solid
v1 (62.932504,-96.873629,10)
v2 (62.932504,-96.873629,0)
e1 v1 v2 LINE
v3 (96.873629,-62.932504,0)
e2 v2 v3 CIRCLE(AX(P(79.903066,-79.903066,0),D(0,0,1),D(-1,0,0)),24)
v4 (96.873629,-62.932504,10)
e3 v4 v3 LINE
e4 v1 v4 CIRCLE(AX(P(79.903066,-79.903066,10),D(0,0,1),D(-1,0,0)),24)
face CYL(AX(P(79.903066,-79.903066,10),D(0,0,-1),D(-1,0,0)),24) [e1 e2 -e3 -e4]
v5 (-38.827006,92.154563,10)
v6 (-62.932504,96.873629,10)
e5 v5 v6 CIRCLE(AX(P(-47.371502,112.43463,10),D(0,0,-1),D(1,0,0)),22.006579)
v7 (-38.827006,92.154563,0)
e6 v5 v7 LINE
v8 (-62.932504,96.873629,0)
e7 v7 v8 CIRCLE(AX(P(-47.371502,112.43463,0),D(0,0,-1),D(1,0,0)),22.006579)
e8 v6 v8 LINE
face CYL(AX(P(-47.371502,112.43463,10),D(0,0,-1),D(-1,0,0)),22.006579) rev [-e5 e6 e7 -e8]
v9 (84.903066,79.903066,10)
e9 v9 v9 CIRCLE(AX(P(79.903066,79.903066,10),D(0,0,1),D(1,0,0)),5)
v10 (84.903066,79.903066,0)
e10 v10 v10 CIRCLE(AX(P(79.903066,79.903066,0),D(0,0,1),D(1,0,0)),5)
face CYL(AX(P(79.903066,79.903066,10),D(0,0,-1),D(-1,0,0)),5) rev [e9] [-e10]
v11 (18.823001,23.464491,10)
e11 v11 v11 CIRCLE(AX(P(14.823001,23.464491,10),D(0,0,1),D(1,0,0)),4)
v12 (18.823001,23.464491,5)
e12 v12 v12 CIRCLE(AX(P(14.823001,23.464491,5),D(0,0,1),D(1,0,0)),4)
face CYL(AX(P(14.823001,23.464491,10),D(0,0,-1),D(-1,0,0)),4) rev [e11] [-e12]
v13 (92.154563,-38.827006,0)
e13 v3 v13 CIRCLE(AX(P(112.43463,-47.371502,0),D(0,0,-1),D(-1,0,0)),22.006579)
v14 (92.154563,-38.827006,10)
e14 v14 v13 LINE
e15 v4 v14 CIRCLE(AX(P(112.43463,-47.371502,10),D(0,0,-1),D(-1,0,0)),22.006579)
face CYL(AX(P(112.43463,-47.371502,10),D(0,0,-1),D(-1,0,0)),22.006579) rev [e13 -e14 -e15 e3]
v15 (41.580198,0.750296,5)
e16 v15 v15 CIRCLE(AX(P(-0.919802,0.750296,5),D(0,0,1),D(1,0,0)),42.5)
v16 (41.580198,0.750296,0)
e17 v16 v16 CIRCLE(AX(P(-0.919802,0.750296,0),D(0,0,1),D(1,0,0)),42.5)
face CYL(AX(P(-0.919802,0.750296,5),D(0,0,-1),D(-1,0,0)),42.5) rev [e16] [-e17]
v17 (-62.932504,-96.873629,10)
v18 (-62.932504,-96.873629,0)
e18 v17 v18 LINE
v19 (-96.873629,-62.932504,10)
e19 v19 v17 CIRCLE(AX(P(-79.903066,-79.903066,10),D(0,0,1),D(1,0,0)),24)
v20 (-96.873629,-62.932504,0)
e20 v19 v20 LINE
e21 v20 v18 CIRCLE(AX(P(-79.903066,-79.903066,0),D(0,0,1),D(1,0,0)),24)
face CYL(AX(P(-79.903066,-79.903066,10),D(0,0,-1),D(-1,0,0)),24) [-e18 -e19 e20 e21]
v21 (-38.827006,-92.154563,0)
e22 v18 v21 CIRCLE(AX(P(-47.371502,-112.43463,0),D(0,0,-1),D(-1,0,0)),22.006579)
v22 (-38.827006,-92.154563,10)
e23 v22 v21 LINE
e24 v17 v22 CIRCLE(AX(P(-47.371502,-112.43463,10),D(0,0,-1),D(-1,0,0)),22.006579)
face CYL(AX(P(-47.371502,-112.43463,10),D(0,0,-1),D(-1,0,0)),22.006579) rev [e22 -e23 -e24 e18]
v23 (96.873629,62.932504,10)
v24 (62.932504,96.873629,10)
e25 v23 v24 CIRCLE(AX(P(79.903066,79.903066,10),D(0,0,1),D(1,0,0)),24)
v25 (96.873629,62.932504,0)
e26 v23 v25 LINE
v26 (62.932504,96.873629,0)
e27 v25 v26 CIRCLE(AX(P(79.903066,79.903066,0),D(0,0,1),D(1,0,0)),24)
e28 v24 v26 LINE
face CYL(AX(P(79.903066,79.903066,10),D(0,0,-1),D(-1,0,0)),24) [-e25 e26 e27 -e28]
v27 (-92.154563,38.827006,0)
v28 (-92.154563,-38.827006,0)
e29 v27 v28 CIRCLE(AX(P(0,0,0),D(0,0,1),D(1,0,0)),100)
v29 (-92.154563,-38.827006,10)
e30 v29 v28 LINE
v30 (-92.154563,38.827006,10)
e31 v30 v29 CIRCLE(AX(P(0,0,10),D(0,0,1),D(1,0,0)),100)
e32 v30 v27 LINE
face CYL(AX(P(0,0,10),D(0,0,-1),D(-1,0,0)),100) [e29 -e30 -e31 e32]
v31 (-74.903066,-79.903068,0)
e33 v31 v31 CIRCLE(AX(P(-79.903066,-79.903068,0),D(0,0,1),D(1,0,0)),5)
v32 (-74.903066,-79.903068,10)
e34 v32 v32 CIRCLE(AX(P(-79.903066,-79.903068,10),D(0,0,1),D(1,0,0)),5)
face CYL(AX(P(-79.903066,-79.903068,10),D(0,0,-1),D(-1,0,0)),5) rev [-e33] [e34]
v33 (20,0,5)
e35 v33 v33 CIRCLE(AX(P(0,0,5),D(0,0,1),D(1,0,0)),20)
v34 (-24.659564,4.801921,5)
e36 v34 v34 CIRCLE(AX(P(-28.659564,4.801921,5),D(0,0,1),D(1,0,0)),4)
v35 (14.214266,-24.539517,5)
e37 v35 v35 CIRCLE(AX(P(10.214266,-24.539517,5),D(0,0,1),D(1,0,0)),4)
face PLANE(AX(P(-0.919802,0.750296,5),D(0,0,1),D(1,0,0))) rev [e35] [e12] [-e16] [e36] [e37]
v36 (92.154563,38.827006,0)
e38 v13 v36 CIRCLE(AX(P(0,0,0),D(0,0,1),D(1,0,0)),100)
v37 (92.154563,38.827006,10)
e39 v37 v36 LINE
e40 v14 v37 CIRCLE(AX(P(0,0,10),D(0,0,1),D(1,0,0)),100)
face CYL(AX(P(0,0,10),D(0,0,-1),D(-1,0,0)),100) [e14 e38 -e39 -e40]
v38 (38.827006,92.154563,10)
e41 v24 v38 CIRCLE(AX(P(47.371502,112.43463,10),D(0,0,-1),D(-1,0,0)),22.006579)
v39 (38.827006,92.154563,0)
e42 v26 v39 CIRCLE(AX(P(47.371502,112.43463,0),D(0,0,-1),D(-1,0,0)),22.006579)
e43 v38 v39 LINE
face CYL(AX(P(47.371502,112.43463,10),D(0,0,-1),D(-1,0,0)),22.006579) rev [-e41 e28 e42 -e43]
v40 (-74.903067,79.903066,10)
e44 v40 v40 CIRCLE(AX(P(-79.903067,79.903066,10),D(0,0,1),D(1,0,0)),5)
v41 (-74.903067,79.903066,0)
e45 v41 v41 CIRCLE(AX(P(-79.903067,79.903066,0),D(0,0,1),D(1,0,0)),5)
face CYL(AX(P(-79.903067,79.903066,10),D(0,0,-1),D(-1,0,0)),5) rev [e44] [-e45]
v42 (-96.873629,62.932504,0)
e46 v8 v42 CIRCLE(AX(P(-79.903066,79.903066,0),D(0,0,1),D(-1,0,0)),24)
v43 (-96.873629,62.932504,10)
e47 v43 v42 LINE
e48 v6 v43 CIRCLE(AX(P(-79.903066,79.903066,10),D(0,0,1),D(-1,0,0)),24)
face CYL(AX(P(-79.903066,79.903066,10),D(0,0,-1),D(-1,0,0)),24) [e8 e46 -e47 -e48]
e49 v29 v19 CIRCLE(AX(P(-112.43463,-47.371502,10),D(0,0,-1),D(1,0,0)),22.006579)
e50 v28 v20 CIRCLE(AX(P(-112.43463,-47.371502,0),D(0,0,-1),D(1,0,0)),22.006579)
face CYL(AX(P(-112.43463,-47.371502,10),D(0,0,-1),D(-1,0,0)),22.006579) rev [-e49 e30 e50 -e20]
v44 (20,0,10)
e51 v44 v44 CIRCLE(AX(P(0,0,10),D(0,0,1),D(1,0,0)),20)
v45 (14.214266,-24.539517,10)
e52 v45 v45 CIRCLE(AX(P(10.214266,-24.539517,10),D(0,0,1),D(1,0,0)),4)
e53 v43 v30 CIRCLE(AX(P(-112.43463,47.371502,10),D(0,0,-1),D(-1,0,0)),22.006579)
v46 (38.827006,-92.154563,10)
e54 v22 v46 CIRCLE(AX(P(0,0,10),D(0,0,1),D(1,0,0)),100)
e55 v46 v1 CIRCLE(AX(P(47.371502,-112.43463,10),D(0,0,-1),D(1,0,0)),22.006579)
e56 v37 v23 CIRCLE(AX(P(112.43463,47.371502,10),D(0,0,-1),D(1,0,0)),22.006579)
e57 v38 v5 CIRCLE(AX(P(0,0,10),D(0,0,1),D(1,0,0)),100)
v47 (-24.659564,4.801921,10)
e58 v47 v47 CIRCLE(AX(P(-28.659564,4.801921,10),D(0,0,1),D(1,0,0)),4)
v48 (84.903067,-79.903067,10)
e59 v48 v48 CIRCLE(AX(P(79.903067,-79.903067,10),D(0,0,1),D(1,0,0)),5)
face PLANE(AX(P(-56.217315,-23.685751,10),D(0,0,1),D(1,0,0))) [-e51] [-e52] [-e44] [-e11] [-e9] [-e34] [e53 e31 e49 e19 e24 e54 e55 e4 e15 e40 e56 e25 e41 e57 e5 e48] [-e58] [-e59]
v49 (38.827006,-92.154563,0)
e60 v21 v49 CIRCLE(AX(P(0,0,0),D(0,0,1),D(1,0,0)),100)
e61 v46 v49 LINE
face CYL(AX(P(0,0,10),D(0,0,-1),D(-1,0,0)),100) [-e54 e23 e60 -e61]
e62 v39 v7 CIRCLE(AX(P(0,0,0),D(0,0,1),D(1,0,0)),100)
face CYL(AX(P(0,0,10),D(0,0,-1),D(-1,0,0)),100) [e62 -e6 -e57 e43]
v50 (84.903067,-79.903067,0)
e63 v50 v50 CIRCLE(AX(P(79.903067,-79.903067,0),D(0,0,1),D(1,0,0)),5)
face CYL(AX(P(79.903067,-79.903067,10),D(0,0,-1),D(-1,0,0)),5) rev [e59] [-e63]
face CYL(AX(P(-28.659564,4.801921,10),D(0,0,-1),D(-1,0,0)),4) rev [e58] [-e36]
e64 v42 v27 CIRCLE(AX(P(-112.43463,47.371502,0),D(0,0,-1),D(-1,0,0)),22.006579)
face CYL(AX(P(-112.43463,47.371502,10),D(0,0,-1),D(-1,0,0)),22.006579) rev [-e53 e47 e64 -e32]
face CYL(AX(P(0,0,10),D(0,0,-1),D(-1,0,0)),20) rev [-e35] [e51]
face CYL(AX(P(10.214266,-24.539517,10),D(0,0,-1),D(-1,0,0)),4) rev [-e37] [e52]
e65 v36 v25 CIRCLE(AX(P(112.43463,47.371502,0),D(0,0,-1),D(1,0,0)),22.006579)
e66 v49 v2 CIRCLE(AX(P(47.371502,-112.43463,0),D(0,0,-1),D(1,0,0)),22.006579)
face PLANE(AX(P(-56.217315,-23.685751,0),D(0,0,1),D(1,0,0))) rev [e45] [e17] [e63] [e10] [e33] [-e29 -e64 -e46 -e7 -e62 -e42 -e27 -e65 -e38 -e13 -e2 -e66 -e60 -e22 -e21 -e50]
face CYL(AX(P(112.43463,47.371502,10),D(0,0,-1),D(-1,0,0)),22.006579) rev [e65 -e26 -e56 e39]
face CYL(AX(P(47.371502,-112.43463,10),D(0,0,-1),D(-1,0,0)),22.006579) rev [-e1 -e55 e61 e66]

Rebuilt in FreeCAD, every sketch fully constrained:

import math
import FreeCAD as App
import Part
import Sketcher
from FreeCAD import Vector
Q = App.Units.Quantity

doc = App.newDocument("Part")
body = doc.addObject("PartDesign::Body", "Body")

# Sketch on XY plane
sketch1 = doc.addObject("Sketcher::SketchObject", "Sketch")
body.addObject(sketch1)
sketch1.AttachmentSupport = (doc.XY_Plane, [""])
sketch1.MapMode = "FlatFace"
sketch1.addGeometry([
    Part.ArcOfCircle(Part.Circle(Vector(47.371502, 112.43463, 0), Vector(0, 0, 1), 22.006579), math.radians(-112.846901), math.radians(-45)),  # 0
    Part.ArcOfCircle(Part.Circle(Vector(0, 0, 0), Vector(0, 0, 1), 100), math.radians(67.153099), math.radians(112.846901)),  # 1
    Part.ArcOfCircle(Part.Circle(Vector(-47.371502, 112.43463, 0), Vector(0, 0, 1), 22.006579), math.radians(-135), math.radians(-67.153099)),  # 2
    Part.ArcOfCircle(Part.Circle(Vector(-79.903066, 79.903066, 0), Vector(0, 0, 1), 24), math.radians(45), math.radians(225)),  # 3
    Part.ArcOfCircle(Part.Circle(Vector(-112.43463, 47.371502, 0), Vector(0, 0, 1), 22.006579), math.radians(-22.846901), math.radians(45)),  # 4
    Part.ArcOfCircle(Part.Circle(Vector(0, 0, 0), Vector(0, 0, 1), 100), math.radians(157.153099), math.radians(202.846901)),  # 5
    Part.ArcOfCircle(Part.Circle(Vector(-112.43463, -47.371502, 0), Vector(0, 0, 1), 22.006579), math.radians(-45), math.radians(22.846901)),  # 6
    Part.ArcOfCircle(Part.Circle(Vector(-79.903066, -79.903066, 0), Vector(0, 0, 1), 24), math.radians(135), math.radians(315)),  # 7
    Part.ArcOfCircle(Part.Circle(Vector(-47.371502, -112.43463, 0), Vector(0, 0, 1), 22.006579), math.radians(67.153099), math.radians(135)),  # 8
    Part.ArcOfCircle(Part.Circle(Vector(0, 0, 0), Vector(0, 0, 1), 100), math.radians(-112.846901), math.radians(-67.153099)),  # 9
    Part.ArcOfCircle(Part.Circle(Vector(47.371502, -112.43463, 0), Vector(0, 0, 1), 22.006579), math.radians(45), math.radians(112.846901)),  # 10
    Part.ArcOfCircle(Part.Circle(Vector(79.903066, -79.903066, 0), Vector(0, 0, 1), 24), math.radians(-135), math.radians(45)),  # 11
    Part.ArcOfCircle(Part.Circle(Vector(112.43463, -47.371502, 0), Vector(0, 0, 1), 22.006579), math.radians(157.153099), math.radians(225)),  # 12
    Part.ArcOfCircle(Part.Circle(Vector(0, 0, 0), Vector(0, 0, 1), 100), math.radians(-22.846901), math.radians(22.846901)),  # 13
    Part.ArcOfCircle(Part.Circle(Vector(112.43463, 47.371502, 0), Vector(0, 0, 1), 22.006579), math.radians(135), math.radians(202.846901)),  # 14
    Part.ArcOfCircle(Part.Circle(Vector(79.903066, 79.903066, 0), Vector(0, 0, 1), 24), math.radians(-45), math.radians(135)),  # 15
    Part.Circle(Vector(-79.903066, -79.903068, 0), Vector(0, 0, 1), 5),  # 16
    Part.Circle(Vector(79.903067, -79.903067, 0), Vector(0, 0, 1), 5),  # 17
    Part.Circle(Vector(10.214266, -24.539517, 0), Vector(0, 0, 1), 4),  # 18
    Part.Circle(Vector(-28.659564, 4.801921, 0), Vector(0, 0, 1), 4),  # 19
    Part.Circle(Vector(-79.903067, 79.903066, 0), Vector(0, 0, 1), 5),  # 20
    Part.Circle(Vector(14.823001, 23.464491, 0), Vector(0, 0, 1), 4),  # 21
    Part.Circle(Vector(79.903066, 79.903066, 0), Vector(0, 0, 1), 5),  # 22
], False)
sketch1.addConstraint([
    Sketcher.Constraint("Tangent", 0, 1, 1, 1),
    Sketcher.Constraint("Tangent", 1, 2, 2, 2),
    Sketcher.Constraint("Tangent", 2, 1, 3, 1),
    Sketcher.Constraint("Tangent", 3, 2, 4, 2),
    Sketcher.Constraint("Tangent", 4, 1, 5, 1),
    Sketcher.Constraint("Tangent", 5, 2, 6, 2),
    Sketcher.Constraint("Tangent", 6, 1, 7, 1),
    Sketcher.Constraint("Tangent", 7, 2, 8, 2),
    Sketcher.Constraint("Tangent", 8, 1, 9, 1),
    Sketcher.Constraint("Tangent", 9, 2, 10, 2),
    Sketcher.Constraint("Tangent", 10, 1, 11, 1),
    Sketcher.Constraint("Tangent", 11, 2, 12, 2),
    Sketcher.Constraint("Tangent", 12, 1, 13, 1),
    Sketcher.Constraint("Tangent", 13, 2, 14, 2),
    Sketcher.Constraint("Tangent", 14, 1, 15, 1),
    Sketcher.Constraint("Tangent", 15, 2, 0, 2),
    Sketcher.Constraint("Coincident", 1, 3, -1, 1),
    Sketcher.Constraint("Coincident", 5, 3, -1, 1),
    Sketcher.Constraint("Coincident", 9, 3, -1, 1),
    Sketcher.Constraint("Coincident", 13, 3, -1, 1),
    Sketcher.Constraint("Coincident", 16, 3, 7, 3),
    Sketcher.Constraint("Coincident", 17, 3, 11, 3),
    Sketcher.Constraint("Coincident", 20, 3, 3, 3),
    Sketcher.Constraint("Coincident", 22, 3, 15, 3),
    Sketcher.Constraint("Equal", 0, 2),
    Sketcher.Constraint("Equal", 2, 4),
    Sketcher.Constraint("Equal", 1, 5),
    Sketcher.Constraint("Equal", 4, 6),
    Sketcher.Constraint("Equal", 3, 7),
    Sketcher.Constraint("Equal", 6, 8),
    Sketcher.Constraint("Equal", 5, 9),
    Sketcher.Constraint("Equal", 8, 10),
    Sketcher.Constraint("Equal", 7, 11),
    Sketcher.Constraint("Equal", 10, 12),
    Sketcher.Constraint("Equal", 9, 13),
    Sketcher.Constraint("Equal", 12, 14),
    Sketcher.Constraint("Equal", 11, 15),
    Sketcher.Constraint("Equal", 16, 17),
    Sketcher.Constraint("Equal", 18, 19),
    Sketcher.Constraint("Equal", 17, 20),
    Sketcher.Constraint("Equal", 19, 21),
    Sketcher.Constraint("Equal", 20, 22),
    Sketcher.Constraint("Symmetric", 3, 3, 11, 3, -1, 1),
    Sketcher.Constraint("Symmetric", 7, 3, 15, 3, -1, 1),
    Sketcher.Constraint("Symmetric", 7, 3, 11, 3, -2),
    Sketcher.Constraint("Diameter", 16, Q("10 mm")),
    Sketcher.Constraint("Diameter", 18, Q("8 mm")),
    Sketcher.Constraint("Radius", 1, Q("100 mm")),
    Sketcher.Constraint("Radius", 3, Q("24 mm")),
    Sketcher.Constraint("Radius", 0, Q("22.006579 mm")),
    Sketcher.Constraint("DistanceX", -1, 1, 21, 3, Q("14.823001 mm")),
    Sketcher.Constraint("DistanceX", 2, 1, 2, 3, Q("15.561001 mm")),
    Sketcher.Constraint("DistanceX", 4, 3, 3, 2, Q("15.561001 mm")),
    Sketcher.Constraint("DistanceX", 5, 2, 19, 3, Q("63.495 mm")),
    Sketcher.Constraint("DistanceX", 18, 3, 11, 3, Q("69.6888 mm")),
    Sketcher.Constraint("DistanceY", -1, 1, 19, 3, Q("4.801921 mm")),
    Sketcher.Constraint("DistanceY", -1, 1, 21, 3, Q("23.464491 mm")),
    Sketcher.Constraint("DistanceY", 11, 3, 18, 3, Q("55.36355 mm")),
])
pad1 = doc.addObject("PartDesign::Pad", "Pad")
body.addObject(pad1)
pad1.Profile = sketch1
pad1.Length = 10

# Sketch on XY plane
sketch2 = doc.addObject("Sketcher::SketchObject", "Sketch001")
body.addObject(sketch2)
sketch2.AttachmentSupport = (doc.XY_Plane, [""])
sketch2.MapMode = "FlatFace"
sketch2.addGeometry(Part.Circle(Vector(0, 0, 0), Vector(0, 0, 1), 20), False)
sketch2.addConstraint([
    Sketcher.Constraint("Coincident", 0, 3, -1, 1),
    Sketcher.Constraint("Diameter", 0, Q("40 mm")),
])
pocket1 = doc.addObject("PartDesign::Pocket", "Pocket")
body.addObject(pocket1)
pocket1.Profile = sketch2
pocket1.Type = "ThroughAll"
pocket1.Midplane = True

# Sketch on XY plane
sketch3 = doc.addObject("Sketcher::SketchObject", "Sketch002")
body.addObject(sketch3)
sketch3.AttachmentSupport = (doc.XY_Plane, [""])
sketch3.MapMode = "FlatFace"
sketch3.addGeometry(Part.Circle(Vector(-0.919802, 0.750296, 0), Vector(0, 0, 1), 42.5), False)
sketch3.addConstraint([
    Sketcher.Constraint("Diameter", 0, Q("85 mm")),
    Sketcher.Constraint("DistanceX", 0, 3, -1, 1, Q("0.919802 mm")),
    Sketcher.Constraint("DistanceY", -1, 1, 0, 3, Q("0.750296 mm")),
])
pocket2 = doc.addObject("PartDesign::Pocket", "Pocket001")
body.addObject(pocket2)
pocket2.Profile = sketch3
pocket2.Length = 5
pocket2.Reversed = True

doc.recompute()
